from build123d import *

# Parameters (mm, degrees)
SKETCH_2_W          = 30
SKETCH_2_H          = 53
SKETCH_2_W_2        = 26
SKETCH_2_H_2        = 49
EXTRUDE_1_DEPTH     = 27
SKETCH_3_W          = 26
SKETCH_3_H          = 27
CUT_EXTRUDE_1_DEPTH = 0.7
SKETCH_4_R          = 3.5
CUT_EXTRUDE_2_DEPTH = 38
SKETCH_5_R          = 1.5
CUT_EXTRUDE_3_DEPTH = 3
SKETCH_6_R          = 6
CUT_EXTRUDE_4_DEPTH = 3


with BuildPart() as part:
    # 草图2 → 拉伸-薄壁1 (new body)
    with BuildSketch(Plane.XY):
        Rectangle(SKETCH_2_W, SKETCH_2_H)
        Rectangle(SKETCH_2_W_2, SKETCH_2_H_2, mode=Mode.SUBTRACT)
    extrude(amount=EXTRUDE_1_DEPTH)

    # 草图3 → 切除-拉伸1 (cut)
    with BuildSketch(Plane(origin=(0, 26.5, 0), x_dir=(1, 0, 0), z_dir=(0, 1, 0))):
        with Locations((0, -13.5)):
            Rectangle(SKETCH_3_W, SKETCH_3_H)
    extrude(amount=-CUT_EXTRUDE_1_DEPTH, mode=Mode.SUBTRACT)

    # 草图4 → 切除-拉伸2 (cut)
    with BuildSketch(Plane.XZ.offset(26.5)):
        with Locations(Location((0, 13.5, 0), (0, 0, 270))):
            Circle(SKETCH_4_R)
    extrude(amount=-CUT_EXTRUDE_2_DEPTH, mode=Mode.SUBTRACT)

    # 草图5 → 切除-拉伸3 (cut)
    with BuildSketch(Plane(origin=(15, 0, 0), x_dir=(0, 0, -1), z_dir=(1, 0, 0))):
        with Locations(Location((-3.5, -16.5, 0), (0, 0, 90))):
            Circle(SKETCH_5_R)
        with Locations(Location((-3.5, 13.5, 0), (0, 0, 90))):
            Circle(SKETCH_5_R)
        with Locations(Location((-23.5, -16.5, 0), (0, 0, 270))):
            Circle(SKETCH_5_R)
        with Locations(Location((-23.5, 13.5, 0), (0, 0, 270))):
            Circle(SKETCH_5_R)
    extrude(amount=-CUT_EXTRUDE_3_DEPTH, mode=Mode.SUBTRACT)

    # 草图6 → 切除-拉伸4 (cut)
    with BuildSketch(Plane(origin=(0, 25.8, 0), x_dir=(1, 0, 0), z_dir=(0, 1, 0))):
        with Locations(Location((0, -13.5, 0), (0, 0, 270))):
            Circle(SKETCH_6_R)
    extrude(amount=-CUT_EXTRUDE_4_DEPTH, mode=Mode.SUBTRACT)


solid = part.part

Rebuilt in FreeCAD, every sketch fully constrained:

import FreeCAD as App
import Part
import Sketcher

V = App.Vector
Q = App.Units.Quantity


def add_polygon(sketch, points):
    """Adds a closed chain of lines whose ends are joined by coincident constraints."""
    first, n = sketch.GeometryCount, len(points)
    for a, b in zip(points, points[1:] + points[:1]):
        sketch.addGeometry(Part.LineSegment(App.Vector(*a, 0), App.Vector(*b, 0)), False)
    for i in range(n):
        sketch.addConstraint(Sketcher.Constraint("Coincident", first + i, 2, first + (i + 1) % n, 1))

doc = App.newDocument("Part")
body = doc.addObject("PartDesign::Body", "Body")

sketch1 = body.newObject("Sketcher::SketchObject", "Sketch")
sketch1.AttachmentSupport = (doc.getObject("XY_Plane"), [""])
sketch1.MapMode = "FlatFace"
add_polygon(sketch1, [(-15, 26), (-15, -26), (15, -26), (15, 26)])
add_polygon(sketch1, [(13, -24), (-13, -24), (-13, 24), (13, 24)])
sketch1.addConstraint(Sketcher.Constraint("Vertical", 0))
sketch1.addConstraint(Sketcher.Constraint("Horizontal", 1))
sketch1.addConstraint(Sketcher.Constraint("Vertical", 2))
sketch1.addConstraint(Sketcher.Constraint("Horizontal", 3))
sketch1.addConstraint(Sketcher.Constraint("Horizontal", 4))
sketch1.addConstraint(Sketcher.Constraint("Vertical", 5))
sketch1.addConstraint(Sketcher.Constraint("Horizontal", 6))
sketch1.addConstraint(Sketcher.Constraint("Vertical", 7))
sketch1.addConstraint(Sketcher.Constraint("Symmetric", 0, 2, 2, 2, -1, 1))
sketch1.addConstraint(Sketcher.Constraint("Symmetric", 4, 2, 6, 2, -1, 1))
sketch1.addConstraint(Sketcher.Constraint("DistanceX", 1, 1, 1, 2, Q("30 mm")))
sketch1.addConstraint(Sketcher.Constraint("DistanceX", 4, 2, 4, 1, Q("26 mm")))
sketch1.addConstraint(Sketcher.Constraint("DistanceY", 0, 2, 0, 1, Q("53 mm")))
sketch1.addConstraint(Sketcher.Constraint("DistanceY", 5, 1, 5, 2, Q("49 mm")))
pad1 = body.newObject("PartDesign::Pad", "Pad")
pad1.Profile = sketch1
pad1.Length = 27

sketch2 = body.newObject("Sketcher::SketchObject", "Sketch001")
sketch2.AttachmentSupport = (doc.getObject("XZ_Plane"), [""])
sketch2.MapMode = "FlatFace"
sketch2.AttachmentOffset = App.Placement(V(0, 0, -26.5), App.Rotation())
add_polygon(sketch2, [(-13, 0), (-13, 27), (13, 27), (13, 0)])
sketch2.addConstraint(Sketcher.Constraint("Vertical", 0))
sketch2.addConstraint(Sketcher.Constraint("Horizontal", 1))
sketch2.addConstraint(Sketcher.Constraint("Vertical", 2))
sketch2.addConstraint(Sketcher.Constraint("Horizontal", 3))
sketch2.addConstraint(Sketcher.Constraint("Symmetric", 2, 2, 3, 2, -1, 1))
sketch2.addConstraint(Sketcher.Constraint("DistanceX", 1, 1, 1, 2, Q("26 mm")))
sketch2.addConstraint(Sketcher.Constraint("DistanceY", 0, 1, 0, 2, Q("27 mm")))
pocket1 = body.newObject("PartDesign::Pocket", "Pocket")
pocket1.Profile = sketch2
pocket1.Length = 0.7
pocket1.Reversed = True

sketch3 = body.newObject("Sketcher::SketchObject", "Sketch002")
sketch3.AttachmentSupport = (doc.getObject("XZ_Plane"), [""])
sketch3.MapMode = "FlatFace"
sketch3.AttachmentOffset = App.Placement(V(0, 0, 26.5), App.Rotation())
sketch3.addGeometry(Part.Circle(V(0, 13.5, 0), V(0, 0, 1), 3.5), False)
sketch3.addConstraint(Sketcher.Constraint("PointOnObject", 0, 3, -2))
sketch3.addConstraint(Sketcher.Constraint("Diameter", 0, Q("7 mm")))
sketch3.addConstraint(Sketcher.Constraint("DistanceY", -1, 1, 0, 3, Q("13.5 mm")))
pocket2 = body.newObject("PartDesign::Pocket", "Pocket001")
pocket2.Profile = sketch3
pocket2.Length = 38

sketch4 = body.newObject("Sketcher::SketchObject", "Sketch003")
sketch4.AttachmentSupport = (doc.getObject("YZ_Plane"), [""])
sketch4.MapMode = "FlatFace"
sketch4.AttachmentOffset = App.Placement(V(0, 0, 15), App.Rotation())
sketch4.addGeometry(Part.Circle(V(-16.5, 3.5, 0), V(0, 0, 1), 1.5), False)
sketch4.addGeometry(Part.Circle(V(13.5, 3.5, 0), V(0, 0, 1), 1.5), False)
sketch4.addGeometry(Part.Circle(V(-16.5, 23.5, 0), V(0, 0, 1), 1.5), False)
sketch4.addGeometry(Part.Circle(V(13.5, 23.5, 0), V(0, 0, 1), 1.5), False)
sketch4.addConstraint(Sketcher.Constraint("Equal", 0, 1))
sketch4.addConstraint(Sketcher.Constraint("Equal", 1, 2))
sketch4.addConstraint(Sketcher.Constraint("Equal", 2, 3))
sketch4.addConstraint(Sketcher.Constraint("Horizontal", 0, 3, 1, 3))
sketch4.addConstraint(Sketcher.Constraint("Horizontal", 2, 3, 3, 3))
sketch4.addConstraint(Sketcher.Constraint("Vertical", 0, 3, 2, 3))
sketch4.addConstraint(Sketcher.Constraint("Vertical", 1, 3, 3, 3))
sketch4.addConstraint(Sketcher.Constraint("Diameter", 0, Q("3 mm")))
sketch4.addConstraint(Sketcher.Constraint("DistanceX", 0, 3, 1, 3, Q("30 mm")))
sketch4.addConstraint(Sketcher.Constraint("DistanceY", 0, 3, 2, 3, Q("20 mm")))
sketch4.addConstraint(Sketcher.Constraint("DistanceX", 0, 3, -1, 1, Q("16.5 mm")))
sketch4.addConstraint(Sketcher.Constraint("DistanceY", -1, 1, 0, 3, Q("3.5 mm")))
pocket3 = body.newObject("PartDesign::Pocket", "Pocket002")
pocket3.Profile = sketch4
pocket3.Length = 3

sketch5 = body.newObject("Sketcher::SketchObject", "Sketch004")
sketch5.AttachmentSupport = (doc.getObject("XZ_Plane"), [""])
sketch5.MapMode = "FlatFace"
sketch5.AttachmentOffset = App.Placement(V(0, 0, -25.8), App.Rotation())
sketch5.addGeometry(Part.Circle(V(0, 14, 0), V(0, 0, 1), 6), False)
sketch5.addConstraint(Sketcher.Constraint("PointOnObject", 0, 3, -2))
sketch5.addConstraint(Sketcher.Constraint("Diameter", 0, Q("12 mm")))
sketch5.addConstraint(Sketcher.Constraint("DistanceY", -1, 1, 0, 3, Q("13.5 mm")))
pocket4 = body.newObject("PartDesign::Pocket", "Pocket003")
pocket4.Profile = sketch5
pocket4.Length = 3
pocket4.Reversed = True

doc.recompute()
